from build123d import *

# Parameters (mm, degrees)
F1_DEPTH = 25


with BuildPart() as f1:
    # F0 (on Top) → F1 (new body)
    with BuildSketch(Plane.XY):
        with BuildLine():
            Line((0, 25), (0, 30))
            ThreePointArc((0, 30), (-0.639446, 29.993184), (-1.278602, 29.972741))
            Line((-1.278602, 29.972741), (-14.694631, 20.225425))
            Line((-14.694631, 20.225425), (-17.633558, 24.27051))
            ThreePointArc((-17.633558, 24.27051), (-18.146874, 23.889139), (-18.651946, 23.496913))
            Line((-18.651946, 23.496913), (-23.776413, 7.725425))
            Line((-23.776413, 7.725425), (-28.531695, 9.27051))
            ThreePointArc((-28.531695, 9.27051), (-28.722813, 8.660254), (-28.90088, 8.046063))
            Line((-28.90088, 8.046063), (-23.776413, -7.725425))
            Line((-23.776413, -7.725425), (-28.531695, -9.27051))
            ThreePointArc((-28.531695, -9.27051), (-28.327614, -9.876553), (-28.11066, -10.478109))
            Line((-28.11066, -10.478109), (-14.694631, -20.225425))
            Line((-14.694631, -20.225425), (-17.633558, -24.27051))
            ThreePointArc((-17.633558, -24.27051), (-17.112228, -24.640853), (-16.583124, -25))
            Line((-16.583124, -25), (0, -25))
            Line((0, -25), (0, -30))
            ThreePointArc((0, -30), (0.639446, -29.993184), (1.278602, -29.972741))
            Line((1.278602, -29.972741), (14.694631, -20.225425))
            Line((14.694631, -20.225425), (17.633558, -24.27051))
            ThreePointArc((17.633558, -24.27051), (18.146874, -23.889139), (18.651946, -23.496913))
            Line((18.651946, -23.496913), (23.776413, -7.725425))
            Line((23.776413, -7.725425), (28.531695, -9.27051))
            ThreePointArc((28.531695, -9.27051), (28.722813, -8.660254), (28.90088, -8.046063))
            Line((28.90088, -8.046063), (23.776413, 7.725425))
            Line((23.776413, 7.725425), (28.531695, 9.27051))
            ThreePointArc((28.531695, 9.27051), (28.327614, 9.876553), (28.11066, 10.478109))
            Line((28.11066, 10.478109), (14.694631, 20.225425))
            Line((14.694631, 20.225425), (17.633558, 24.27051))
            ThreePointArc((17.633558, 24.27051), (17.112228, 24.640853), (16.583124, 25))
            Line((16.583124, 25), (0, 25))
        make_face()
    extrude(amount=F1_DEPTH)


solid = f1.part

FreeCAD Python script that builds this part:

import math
import FreeCAD as App
import Part
import Sketcher

V = App.Vector
Q = App.Units.Quantity

doc = App.newDocument("Part")
params = doc.addObject("Spreadsheet::Sheet", "Params")
for row, (alias, value) in enumerate([
    ("sketch1_height", "5 mm"),
    ("sketch1_length", "5 mm"),
    ("pad1_length", "25 mm"),
], start=1):
    params.set(f"A{row}", alias)
    params.set(f"B{row}", "=" + value)
    params.setAlias(f"B{row}", alias)

body = doc.addObject("PartDesign::Body", "Body")

# Sketch on XY plane
sketch1 = body.newObject("Sketcher::SketchObject", "Sketch")
sketch1.AttachmentSupport = (doc.getObject("XY_Plane"), [""])
sketch1.MapMode = "FlatFace"
sketch1.addGeometry([
    Part.LineSegment(V(0, 25, 0), V(0, 30, 0)),  # 0
    Part.ArcOfCircle(Part.Circle(V(0.000045, -0.002598, 0), V(0, 0, 1), 30.002598), math.radians(90.000086), math.radians(92.442565)),  # 1
    Part.LineSegment(V(-1.278602, 29.972741, 0), V(-14.694631, 20.225425, 0)),  # 2
    Part.LineSegment(V(-14.694631, 20.225425, 0), V(-17.633558, 24.27051, 0)),  # 3
    Part.ArcOfCircle(Part.Circle(V(0.000831, -0.001085, 0), V(0, 0, 1), 30.001366), math.radians(126.000066), math.radians(128.442645)),  # 4
    Part.LineSegment(V(-18.651946, 23.496913, 0), V(-23.776413, 7.725425, 0)),  # 5
    Part.LineSegment(V(-23.776413, 7.725425, 0), V(-28.531695, 9.27051, 0)),  # 6
    Part.ArcOfCircle(Part.Circle(V(-0.000078, 0.000015, 0), V(0, 0, 1), 29.999921), math.radians(161.999982), math.radians(164.442679)),  # 7
    Part.LineSegment(V(-28.90088, 8.046063, 0), V(-23.776413, -7.725425, 0)),  # 8
    Part.LineSegment(V(-23.776413, -7.725425, 0), V(-28.531695, -9.27051, 0)),  # 9
    Part.ArcOfCircle(Part.Circle(V(-0.00274, -0.000955, 0), V(0, 0, 1), 29.997099), math.radians(-162.000116), math.radians(-159.557191)),  # 10
    Part.LineSegment(V(-28.11066, -10.478109, 0), V(-14.694631, -20.225425, 0)),  # 11
    Part.LineSegment(V(-14.694631, -20.225425, 0), V(-17.633558, -24.27051, 0)),  # 12
    Part.ArcOfCircle(Part.Circle(V(0.001199, 0.001741, 0), V(0, 0, 1), 30.002113), math.radians(-125.999898), math.radians(-123.55738)),  # 13
    Part.LineSegment(V(-16.583124, -25, 0), V(0, -25, 0)),  # 14
    Part.LineSegment(V(0, -25, 0), V(0, -30, 0)),  # 15
    Part.ArcOfCircle(Part.Circle(V(-0.000045, 0.002598, 0), V(0, 0, 1), 30.002598), math.radians(-89.999914), math.radians(-87.557435)),  # 16
    Part.LineSegment(V(1.278602, -29.972741, 0), V(14.694631, -20.225425, 0)),  # 17
    Part.LineSegment(V(14.694631, -20.225425, 0), V(17.633558, -24.27051, 0)),  # 18
    Part.ArcOfCircle(Part.Circle(V(-0.000831, 0.001085, 0), V(0, 0, 1), 30.001366), math.radians(-53.999934), math.radians(-51.557355)),  # 19
    Part.LineSegment(V(18.651946, -23.496913, 0), V(23.776413, -7.725425, 0)),  # 20
    Part.LineSegment(V(23.776413, -7.725425, 0), V(28.531695, -9.27051, 0)),  # 21
    Part.ArcOfCircle(Part.Circle(V(0.000078, -0.000015, 0), V(0, 0, 1), 29.999921), math.radians(-18.000018), math.radians(-15.557321)),  # 22
    Part.LineSegment(V(28.90088, -8.046063, 0), V(23.776413, 7.725425, 0)),  # 23
    Part.LineSegment(V(23.776413, 7.725425, 0), V(28.531695, 9.27051, 0)),  # 24
    Part.ArcOfCircle(Part.Circle(V(0.00274, 0.000955, 0), V(0, 0, 1), 29.997099), math.radians(17.999884), math.radians(20.442809)),  # 25
    Part.LineSegment(V(28.11066, 10.478109, 0), V(14.694631, 20.225425, 0)),  # 26
    Part.LineSegment(V(14.694631, 20.225425, 0), V(17.633558, 24.27051, 0)),  # 27
    Part.ArcOfCircle(Part.Circle(V(-0.001199, -0.001741, 0), V(0, 0, 1), 30.002113), math.radians(54.000102), math.radians(56.44262)),  # 28
    Part.LineSegment(V(16.583124, 25, 0), V(0, 25, 0)),  # 29
], False)
sketch1.addConstraint([
    Sketcher.Constraint("Coincident", 0, 2, 1, 1),
    Sketcher.Constraint("Coincident", 1, 2, 2, 1),
    Sketcher.Constraint("Coincident", 2, 2, 3, 1),
    Sketcher.Constraint("Coincident", 3, 2, 4, 1),
    Sketcher.Constraint("Coincident", 4, 2, 5, 1),
    Sketcher.Constraint("Coincident", 5, 2, 6, 1),
    Sketcher.Constraint("Coincident", 6, 2, 7, 1),
    Sketcher.Constraint("Coincident", 7, 2, 8, 1),
    Sketcher.Constraint("Coincident", 8, 2, 9, 1),
    Sketcher.Constraint("Coincident", 9, 2, 10, 1),
    Sketcher.Constraint("Coincident", 10, 2, 11, 1),
    Sketcher.Constraint("Coincident", 11, 2, 12, 1),
    Sketcher.Constraint("Coincident", 12, 2, 13, 1),
    Sketcher.Constraint("Coincident", 13, 2, 14, 1),
    Sketcher.Constraint("Coincident", 14, 2, 15, 1),
    Sketcher.Constraint("Coincident", 15, 2, 16, 1),
    Sketcher.Constraint("Coincident", 16, 2, 17, 1),
    Sketcher.Constraint("Coincident", 17, 2, 18, 1),
    Sketcher.Constraint("Coincident", 18, 2, 19, 1),
    Sketcher.Constraint("Coincident", 19, 2, 20, 1),
    Sketcher.Constraint("Coincident", 20, 2, 21, 1),
    Sketcher.Constraint("Coincident", 21, 2, 22, 1),
    Sketcher.Constraint("Coincident", 22, 2, 23, 1),
    Sketcher.Constraint("Coincident", 23, 2, 24, 1),
    Sketcher.Constraint("Coincident", 24, 2, 25, 1),
    Sketcher.Constraint("Coincident", 25, 2, 26, 1),
    Sketcher.Constraint("Coincident", 26, 2, 27, 1),
    Sketcher.Constraint("Coincident", 27, 2, 28, 1),
    Sketcher.Constraint("Coincident", 28, 2, 29, 1),
    Sketcher.Constraint("Coincident", 29, 2, 0, 1),
    Sketcher.Constraint("Vertical", 0),
    Sketcher.Constraint("Horizontal", 14),
    Sketcher.Constraint("Vertical", 15),
    Sketcher.Constraint("Horizontal", 29),
    Sketcher.Constraint("Equal", 1, 16),
    Sketcher.Constraint("Equal", 4, 19),
    Sketcher.Constraint("Equal", 7, 22),
    Sketcher.Constraint("Equal", 10, 25),
    Sketcher.Constraint("Equal", 13, 28),
    Sketcher.Constraint("Symmetric", 1, 3, 16, 3, -1, 1),
    Sketcher.Constraint("Symmetric", 4, 3, 19, 3, -1, 1),
    Sketcher.Constraint("Symmetric", 7, 3, 22, 3, -1, 1),
    Sketcher.Constraint("Symmetric", 10, 3, 25, 3, -1, 1),
    Sketcher.Constraint("Symmetric", 13, 3, 28, 3, -1, 1),
    Sketcher.Constraint("Symmetric", 2, 2, 17, 2, -1, 1),
    Sketcher.Constraint("Symmetric", 5, 2, 20, 2, -1, 1),
    Sketcher.Constraint("Symmetric", 8, 2, 23, 2, -1, 1),
    Sketcher.Constraint("Symmetric", 11, 2, 26, 2, -1, 1),
    Sketcher.Constraint("Symmetric", 14, 2, 29, 2, -1, 1),
    Sketcher.Constraint("Symmetric", 11, 2, 17, 2, -2),
    Sketcher.Constraint("Symmetric", 12, 2, 18, 2, -2),
    Sketcher.Constraint("Symmetric", 8, 2, 20, 2, -2),
    Sketcher.Constraint("Symmetric", 9, 2, 21, 2, -2),
    Sketcher.Constraint("PointOnObject", 0, 2, -2),
    Sketcher.Constraint("Perpendicular", 2, 3),
    Sketcher.Constraint("Perpendicular", 5, 6),
    Sketcher.Constraint("Perpendicular", 8, 9),
    Sketcher.Constraint("Perpendicular", 11, 12),
    Sketcher.Constraint("Perpendicular", 3, 17),
    Sketcher.Constraint("Perpendicular", 17, 18),
    Sketcher.Constraint("Perpendicular", 6, 20),
    Sketcher.Constraint("Perpendicular", 20, 21),
    Sketcher.Constraint("Perpendicular", 9, 23),
    Sketcher.Constraint("Perpendicular", 23, 24),
    Sketcher.Constraint("Perpendicular", 12, 26),
    Sketcher.Constraint("Perpendicular", 26, 27),
    Sketcher.Constraint("Equal", 2, 5),
    Sketcher.Constraint("Equal", 3, 6),
    Sketcher.Constraint("Equal", 5, 8),
    Sketcher.Constraint("Equal", 8, 11),
    Sketcher.Constraint("DistanceY", 0, 1, 0, 2, 5.0),
    Sketcher.Constraint("Angle", 2, Q("-143.999999 deg")),
    Sketcher.Constraint("Angle", 5, Q("-108 deg")),
    Sketcher.Constraint("Distance", 3, 5.0),
    Sketcher.Constraint("DistanceY", -1, 1, 0, 2, 30.0),
    Sketcher.Constraint("DistanceY", 6, 2, 3, 2, 15.0),
    Sketcher.Constraint("Radius", 1, 30.002598),
    Sketcher.Constraint("Radius", 10, 29.997099),
    Sketcher.Constraint("Radius", 7, 29.999921),
    Sketcher.Constraint("Radius", 4, 30.001366),
    Sketcher.Constraint("Radius", 13, 30.002113),
    Sketcher.Constraint("DistanceY", 13, 3, 1, 2, 29.971),
    Sketcher.Constraint("DistanceX", -1, 1, 13, 3, 0.001199),
    Sketcher.Constraint("DistanceX", 1, 2, -1, 1, 1.278602),
    Sketcher.Constraint("DistanceY", 4, 3, 7, 3, 0.0011),
    Sketcher.Constraint("DistanceX", 2, 2, 19, 3, 14.6938),
])
sketch1.setExpression("Constraints[70]", "Params.sketch1_height")
sketch1.setExpression("Constraints[73]", "Params.sketch1_length")
pad1 = body.newObject("PartDesign::Pad", "Pad")
pad1.Profile = sketch1
pad1.setExpression("Length", "Params.pad1_length")

doc.recompute()
